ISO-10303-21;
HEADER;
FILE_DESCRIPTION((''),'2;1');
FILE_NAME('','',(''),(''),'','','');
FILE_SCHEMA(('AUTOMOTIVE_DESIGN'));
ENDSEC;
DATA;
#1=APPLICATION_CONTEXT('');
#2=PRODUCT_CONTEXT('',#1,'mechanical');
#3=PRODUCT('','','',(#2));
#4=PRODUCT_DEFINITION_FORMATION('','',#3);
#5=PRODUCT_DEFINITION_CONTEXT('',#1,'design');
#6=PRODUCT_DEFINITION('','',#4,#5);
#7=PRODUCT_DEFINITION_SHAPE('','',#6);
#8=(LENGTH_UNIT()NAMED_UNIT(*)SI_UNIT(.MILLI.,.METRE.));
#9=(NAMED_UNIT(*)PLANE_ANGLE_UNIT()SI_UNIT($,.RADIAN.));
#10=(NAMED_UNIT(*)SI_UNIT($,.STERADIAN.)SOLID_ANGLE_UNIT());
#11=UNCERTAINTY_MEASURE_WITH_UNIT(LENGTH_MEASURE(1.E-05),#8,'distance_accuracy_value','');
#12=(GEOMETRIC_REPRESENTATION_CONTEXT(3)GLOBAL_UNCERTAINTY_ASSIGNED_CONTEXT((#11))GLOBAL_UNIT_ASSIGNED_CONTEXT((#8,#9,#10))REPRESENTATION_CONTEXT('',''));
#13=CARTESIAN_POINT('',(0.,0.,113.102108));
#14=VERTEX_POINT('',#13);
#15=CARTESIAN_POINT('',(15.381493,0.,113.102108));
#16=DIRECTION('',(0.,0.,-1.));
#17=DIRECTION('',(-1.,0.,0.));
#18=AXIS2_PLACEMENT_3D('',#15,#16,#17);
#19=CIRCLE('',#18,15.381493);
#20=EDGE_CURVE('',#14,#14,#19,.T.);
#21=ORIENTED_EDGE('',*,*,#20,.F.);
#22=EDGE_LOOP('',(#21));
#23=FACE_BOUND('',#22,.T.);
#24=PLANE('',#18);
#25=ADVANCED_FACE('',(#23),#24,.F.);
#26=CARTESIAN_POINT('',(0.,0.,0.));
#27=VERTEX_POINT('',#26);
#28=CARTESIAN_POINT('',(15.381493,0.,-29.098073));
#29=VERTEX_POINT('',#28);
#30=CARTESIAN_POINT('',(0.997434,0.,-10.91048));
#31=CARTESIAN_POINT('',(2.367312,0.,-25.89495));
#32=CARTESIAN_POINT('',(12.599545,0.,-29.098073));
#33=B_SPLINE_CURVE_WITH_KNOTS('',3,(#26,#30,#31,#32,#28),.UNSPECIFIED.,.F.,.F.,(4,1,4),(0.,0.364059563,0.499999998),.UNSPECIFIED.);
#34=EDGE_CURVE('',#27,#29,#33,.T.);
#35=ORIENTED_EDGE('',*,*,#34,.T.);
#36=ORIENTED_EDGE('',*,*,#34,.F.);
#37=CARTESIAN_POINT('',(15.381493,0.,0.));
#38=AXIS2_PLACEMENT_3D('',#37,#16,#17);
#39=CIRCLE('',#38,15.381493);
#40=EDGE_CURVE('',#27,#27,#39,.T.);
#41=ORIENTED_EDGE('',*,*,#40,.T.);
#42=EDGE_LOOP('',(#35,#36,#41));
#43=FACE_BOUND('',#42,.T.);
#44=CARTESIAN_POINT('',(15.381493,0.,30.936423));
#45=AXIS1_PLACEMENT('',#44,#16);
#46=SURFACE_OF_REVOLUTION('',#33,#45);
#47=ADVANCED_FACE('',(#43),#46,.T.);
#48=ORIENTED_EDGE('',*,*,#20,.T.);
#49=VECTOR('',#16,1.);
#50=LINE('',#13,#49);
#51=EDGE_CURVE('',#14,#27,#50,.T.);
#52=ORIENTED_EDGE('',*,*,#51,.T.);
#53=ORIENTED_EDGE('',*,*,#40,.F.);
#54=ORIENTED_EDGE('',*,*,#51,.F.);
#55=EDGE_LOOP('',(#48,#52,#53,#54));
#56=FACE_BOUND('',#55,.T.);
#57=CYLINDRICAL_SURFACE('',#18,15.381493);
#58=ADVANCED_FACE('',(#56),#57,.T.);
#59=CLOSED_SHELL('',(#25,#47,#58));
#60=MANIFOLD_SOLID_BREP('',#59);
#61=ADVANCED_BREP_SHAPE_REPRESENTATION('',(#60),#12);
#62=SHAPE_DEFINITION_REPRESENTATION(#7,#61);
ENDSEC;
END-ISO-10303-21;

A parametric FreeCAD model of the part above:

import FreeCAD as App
import Part
import Sketcher

V = App.Vector

doc = App.newDocument("Part")
body = doc.addObject("PartDesign::Body", "Body")

sketch1 = body.newObject("Sketcher::SketchObject", "Sketch")
sketch1.AttachmentSupport = (doc.getObject("XZ_Plane"), [""])
sketch1.MapMode = "FlatFace"
sketch1.addGeometry(Part.LineSegment(V(15.381493, 113.102108, 0), V(0, 113.102108, 0)), False)
sketch1.addGeometry(Part.LineSegment(V(0, 113.102108, 0), V(0, 0, 0)), False)
sketch1.addGeometry(Part.BSplineCurve([V(0, 0, 0), V(0.997434, -10.91048, 0), V(2.367312, -25.89495, 0), V(12.599545, -29.098073, 0), V(15.381493, -29.098073, 0)], [4, 1, 4], [0, 0.364059563, 0.499999998], False, 3, [1, 1, 1, 1, 1], False), False)
sketch1.addGeometry(Part.LineSegment(V(15.381493, -29.098073, 0), V(15.381493, 113.102108, 0)), False)
sketch1.addGeometry(Part.LineSegment(V(15.381493, 113.102108, 0), V(15.381493, -29.098073, 0)), True)
sketch1.addConstraint(Sketcher.Constraint("Block", 2))
sketch1.addConstraint(Sketcher.Constraint("Coincident", 0, 2, 1, 1))
sketch1.addConstraint(Sketcher.Constraint("Coincident", 1, 2, 2, 1))
sketch1.addConstraint(Sketcher.Constraint("Coincident", 2, 2, 3, 1))
sketch1.addConstraint(Sketcher.Constraint("Coincident", 3, 2, 0, 1))
sketch1.addConstraint(Sketcher.Constraint("Horizontal", 0))
sketch1.addConstraint(Sketcher.Constraint("Vertical", 1))
sketch1.addConstraint(Sketcher.Constraint("Vertical", 3))
sketch1.addConstraint(Sketcher.Constraint("Vertical", 4))
sketch1.addConstraint(Sketcher.Constraint("Coincident", 4, 1, 3, 2))
sketch1.addConstraint(Sketcher.Constraint("Equal", 3, 4))
sketch1.addConstraint(Sketcher.Constraint("DistanceY", 1, 2, 1, 1, 113.102108))
revolution = body.newObject("PartDesign::Revolution", "Revolution")
revolution.Profile = sketch1
revolution.ReferenceAxis = (sketch1, ["Axis0"])
revolution.Angle = 360

doc.recompute()
